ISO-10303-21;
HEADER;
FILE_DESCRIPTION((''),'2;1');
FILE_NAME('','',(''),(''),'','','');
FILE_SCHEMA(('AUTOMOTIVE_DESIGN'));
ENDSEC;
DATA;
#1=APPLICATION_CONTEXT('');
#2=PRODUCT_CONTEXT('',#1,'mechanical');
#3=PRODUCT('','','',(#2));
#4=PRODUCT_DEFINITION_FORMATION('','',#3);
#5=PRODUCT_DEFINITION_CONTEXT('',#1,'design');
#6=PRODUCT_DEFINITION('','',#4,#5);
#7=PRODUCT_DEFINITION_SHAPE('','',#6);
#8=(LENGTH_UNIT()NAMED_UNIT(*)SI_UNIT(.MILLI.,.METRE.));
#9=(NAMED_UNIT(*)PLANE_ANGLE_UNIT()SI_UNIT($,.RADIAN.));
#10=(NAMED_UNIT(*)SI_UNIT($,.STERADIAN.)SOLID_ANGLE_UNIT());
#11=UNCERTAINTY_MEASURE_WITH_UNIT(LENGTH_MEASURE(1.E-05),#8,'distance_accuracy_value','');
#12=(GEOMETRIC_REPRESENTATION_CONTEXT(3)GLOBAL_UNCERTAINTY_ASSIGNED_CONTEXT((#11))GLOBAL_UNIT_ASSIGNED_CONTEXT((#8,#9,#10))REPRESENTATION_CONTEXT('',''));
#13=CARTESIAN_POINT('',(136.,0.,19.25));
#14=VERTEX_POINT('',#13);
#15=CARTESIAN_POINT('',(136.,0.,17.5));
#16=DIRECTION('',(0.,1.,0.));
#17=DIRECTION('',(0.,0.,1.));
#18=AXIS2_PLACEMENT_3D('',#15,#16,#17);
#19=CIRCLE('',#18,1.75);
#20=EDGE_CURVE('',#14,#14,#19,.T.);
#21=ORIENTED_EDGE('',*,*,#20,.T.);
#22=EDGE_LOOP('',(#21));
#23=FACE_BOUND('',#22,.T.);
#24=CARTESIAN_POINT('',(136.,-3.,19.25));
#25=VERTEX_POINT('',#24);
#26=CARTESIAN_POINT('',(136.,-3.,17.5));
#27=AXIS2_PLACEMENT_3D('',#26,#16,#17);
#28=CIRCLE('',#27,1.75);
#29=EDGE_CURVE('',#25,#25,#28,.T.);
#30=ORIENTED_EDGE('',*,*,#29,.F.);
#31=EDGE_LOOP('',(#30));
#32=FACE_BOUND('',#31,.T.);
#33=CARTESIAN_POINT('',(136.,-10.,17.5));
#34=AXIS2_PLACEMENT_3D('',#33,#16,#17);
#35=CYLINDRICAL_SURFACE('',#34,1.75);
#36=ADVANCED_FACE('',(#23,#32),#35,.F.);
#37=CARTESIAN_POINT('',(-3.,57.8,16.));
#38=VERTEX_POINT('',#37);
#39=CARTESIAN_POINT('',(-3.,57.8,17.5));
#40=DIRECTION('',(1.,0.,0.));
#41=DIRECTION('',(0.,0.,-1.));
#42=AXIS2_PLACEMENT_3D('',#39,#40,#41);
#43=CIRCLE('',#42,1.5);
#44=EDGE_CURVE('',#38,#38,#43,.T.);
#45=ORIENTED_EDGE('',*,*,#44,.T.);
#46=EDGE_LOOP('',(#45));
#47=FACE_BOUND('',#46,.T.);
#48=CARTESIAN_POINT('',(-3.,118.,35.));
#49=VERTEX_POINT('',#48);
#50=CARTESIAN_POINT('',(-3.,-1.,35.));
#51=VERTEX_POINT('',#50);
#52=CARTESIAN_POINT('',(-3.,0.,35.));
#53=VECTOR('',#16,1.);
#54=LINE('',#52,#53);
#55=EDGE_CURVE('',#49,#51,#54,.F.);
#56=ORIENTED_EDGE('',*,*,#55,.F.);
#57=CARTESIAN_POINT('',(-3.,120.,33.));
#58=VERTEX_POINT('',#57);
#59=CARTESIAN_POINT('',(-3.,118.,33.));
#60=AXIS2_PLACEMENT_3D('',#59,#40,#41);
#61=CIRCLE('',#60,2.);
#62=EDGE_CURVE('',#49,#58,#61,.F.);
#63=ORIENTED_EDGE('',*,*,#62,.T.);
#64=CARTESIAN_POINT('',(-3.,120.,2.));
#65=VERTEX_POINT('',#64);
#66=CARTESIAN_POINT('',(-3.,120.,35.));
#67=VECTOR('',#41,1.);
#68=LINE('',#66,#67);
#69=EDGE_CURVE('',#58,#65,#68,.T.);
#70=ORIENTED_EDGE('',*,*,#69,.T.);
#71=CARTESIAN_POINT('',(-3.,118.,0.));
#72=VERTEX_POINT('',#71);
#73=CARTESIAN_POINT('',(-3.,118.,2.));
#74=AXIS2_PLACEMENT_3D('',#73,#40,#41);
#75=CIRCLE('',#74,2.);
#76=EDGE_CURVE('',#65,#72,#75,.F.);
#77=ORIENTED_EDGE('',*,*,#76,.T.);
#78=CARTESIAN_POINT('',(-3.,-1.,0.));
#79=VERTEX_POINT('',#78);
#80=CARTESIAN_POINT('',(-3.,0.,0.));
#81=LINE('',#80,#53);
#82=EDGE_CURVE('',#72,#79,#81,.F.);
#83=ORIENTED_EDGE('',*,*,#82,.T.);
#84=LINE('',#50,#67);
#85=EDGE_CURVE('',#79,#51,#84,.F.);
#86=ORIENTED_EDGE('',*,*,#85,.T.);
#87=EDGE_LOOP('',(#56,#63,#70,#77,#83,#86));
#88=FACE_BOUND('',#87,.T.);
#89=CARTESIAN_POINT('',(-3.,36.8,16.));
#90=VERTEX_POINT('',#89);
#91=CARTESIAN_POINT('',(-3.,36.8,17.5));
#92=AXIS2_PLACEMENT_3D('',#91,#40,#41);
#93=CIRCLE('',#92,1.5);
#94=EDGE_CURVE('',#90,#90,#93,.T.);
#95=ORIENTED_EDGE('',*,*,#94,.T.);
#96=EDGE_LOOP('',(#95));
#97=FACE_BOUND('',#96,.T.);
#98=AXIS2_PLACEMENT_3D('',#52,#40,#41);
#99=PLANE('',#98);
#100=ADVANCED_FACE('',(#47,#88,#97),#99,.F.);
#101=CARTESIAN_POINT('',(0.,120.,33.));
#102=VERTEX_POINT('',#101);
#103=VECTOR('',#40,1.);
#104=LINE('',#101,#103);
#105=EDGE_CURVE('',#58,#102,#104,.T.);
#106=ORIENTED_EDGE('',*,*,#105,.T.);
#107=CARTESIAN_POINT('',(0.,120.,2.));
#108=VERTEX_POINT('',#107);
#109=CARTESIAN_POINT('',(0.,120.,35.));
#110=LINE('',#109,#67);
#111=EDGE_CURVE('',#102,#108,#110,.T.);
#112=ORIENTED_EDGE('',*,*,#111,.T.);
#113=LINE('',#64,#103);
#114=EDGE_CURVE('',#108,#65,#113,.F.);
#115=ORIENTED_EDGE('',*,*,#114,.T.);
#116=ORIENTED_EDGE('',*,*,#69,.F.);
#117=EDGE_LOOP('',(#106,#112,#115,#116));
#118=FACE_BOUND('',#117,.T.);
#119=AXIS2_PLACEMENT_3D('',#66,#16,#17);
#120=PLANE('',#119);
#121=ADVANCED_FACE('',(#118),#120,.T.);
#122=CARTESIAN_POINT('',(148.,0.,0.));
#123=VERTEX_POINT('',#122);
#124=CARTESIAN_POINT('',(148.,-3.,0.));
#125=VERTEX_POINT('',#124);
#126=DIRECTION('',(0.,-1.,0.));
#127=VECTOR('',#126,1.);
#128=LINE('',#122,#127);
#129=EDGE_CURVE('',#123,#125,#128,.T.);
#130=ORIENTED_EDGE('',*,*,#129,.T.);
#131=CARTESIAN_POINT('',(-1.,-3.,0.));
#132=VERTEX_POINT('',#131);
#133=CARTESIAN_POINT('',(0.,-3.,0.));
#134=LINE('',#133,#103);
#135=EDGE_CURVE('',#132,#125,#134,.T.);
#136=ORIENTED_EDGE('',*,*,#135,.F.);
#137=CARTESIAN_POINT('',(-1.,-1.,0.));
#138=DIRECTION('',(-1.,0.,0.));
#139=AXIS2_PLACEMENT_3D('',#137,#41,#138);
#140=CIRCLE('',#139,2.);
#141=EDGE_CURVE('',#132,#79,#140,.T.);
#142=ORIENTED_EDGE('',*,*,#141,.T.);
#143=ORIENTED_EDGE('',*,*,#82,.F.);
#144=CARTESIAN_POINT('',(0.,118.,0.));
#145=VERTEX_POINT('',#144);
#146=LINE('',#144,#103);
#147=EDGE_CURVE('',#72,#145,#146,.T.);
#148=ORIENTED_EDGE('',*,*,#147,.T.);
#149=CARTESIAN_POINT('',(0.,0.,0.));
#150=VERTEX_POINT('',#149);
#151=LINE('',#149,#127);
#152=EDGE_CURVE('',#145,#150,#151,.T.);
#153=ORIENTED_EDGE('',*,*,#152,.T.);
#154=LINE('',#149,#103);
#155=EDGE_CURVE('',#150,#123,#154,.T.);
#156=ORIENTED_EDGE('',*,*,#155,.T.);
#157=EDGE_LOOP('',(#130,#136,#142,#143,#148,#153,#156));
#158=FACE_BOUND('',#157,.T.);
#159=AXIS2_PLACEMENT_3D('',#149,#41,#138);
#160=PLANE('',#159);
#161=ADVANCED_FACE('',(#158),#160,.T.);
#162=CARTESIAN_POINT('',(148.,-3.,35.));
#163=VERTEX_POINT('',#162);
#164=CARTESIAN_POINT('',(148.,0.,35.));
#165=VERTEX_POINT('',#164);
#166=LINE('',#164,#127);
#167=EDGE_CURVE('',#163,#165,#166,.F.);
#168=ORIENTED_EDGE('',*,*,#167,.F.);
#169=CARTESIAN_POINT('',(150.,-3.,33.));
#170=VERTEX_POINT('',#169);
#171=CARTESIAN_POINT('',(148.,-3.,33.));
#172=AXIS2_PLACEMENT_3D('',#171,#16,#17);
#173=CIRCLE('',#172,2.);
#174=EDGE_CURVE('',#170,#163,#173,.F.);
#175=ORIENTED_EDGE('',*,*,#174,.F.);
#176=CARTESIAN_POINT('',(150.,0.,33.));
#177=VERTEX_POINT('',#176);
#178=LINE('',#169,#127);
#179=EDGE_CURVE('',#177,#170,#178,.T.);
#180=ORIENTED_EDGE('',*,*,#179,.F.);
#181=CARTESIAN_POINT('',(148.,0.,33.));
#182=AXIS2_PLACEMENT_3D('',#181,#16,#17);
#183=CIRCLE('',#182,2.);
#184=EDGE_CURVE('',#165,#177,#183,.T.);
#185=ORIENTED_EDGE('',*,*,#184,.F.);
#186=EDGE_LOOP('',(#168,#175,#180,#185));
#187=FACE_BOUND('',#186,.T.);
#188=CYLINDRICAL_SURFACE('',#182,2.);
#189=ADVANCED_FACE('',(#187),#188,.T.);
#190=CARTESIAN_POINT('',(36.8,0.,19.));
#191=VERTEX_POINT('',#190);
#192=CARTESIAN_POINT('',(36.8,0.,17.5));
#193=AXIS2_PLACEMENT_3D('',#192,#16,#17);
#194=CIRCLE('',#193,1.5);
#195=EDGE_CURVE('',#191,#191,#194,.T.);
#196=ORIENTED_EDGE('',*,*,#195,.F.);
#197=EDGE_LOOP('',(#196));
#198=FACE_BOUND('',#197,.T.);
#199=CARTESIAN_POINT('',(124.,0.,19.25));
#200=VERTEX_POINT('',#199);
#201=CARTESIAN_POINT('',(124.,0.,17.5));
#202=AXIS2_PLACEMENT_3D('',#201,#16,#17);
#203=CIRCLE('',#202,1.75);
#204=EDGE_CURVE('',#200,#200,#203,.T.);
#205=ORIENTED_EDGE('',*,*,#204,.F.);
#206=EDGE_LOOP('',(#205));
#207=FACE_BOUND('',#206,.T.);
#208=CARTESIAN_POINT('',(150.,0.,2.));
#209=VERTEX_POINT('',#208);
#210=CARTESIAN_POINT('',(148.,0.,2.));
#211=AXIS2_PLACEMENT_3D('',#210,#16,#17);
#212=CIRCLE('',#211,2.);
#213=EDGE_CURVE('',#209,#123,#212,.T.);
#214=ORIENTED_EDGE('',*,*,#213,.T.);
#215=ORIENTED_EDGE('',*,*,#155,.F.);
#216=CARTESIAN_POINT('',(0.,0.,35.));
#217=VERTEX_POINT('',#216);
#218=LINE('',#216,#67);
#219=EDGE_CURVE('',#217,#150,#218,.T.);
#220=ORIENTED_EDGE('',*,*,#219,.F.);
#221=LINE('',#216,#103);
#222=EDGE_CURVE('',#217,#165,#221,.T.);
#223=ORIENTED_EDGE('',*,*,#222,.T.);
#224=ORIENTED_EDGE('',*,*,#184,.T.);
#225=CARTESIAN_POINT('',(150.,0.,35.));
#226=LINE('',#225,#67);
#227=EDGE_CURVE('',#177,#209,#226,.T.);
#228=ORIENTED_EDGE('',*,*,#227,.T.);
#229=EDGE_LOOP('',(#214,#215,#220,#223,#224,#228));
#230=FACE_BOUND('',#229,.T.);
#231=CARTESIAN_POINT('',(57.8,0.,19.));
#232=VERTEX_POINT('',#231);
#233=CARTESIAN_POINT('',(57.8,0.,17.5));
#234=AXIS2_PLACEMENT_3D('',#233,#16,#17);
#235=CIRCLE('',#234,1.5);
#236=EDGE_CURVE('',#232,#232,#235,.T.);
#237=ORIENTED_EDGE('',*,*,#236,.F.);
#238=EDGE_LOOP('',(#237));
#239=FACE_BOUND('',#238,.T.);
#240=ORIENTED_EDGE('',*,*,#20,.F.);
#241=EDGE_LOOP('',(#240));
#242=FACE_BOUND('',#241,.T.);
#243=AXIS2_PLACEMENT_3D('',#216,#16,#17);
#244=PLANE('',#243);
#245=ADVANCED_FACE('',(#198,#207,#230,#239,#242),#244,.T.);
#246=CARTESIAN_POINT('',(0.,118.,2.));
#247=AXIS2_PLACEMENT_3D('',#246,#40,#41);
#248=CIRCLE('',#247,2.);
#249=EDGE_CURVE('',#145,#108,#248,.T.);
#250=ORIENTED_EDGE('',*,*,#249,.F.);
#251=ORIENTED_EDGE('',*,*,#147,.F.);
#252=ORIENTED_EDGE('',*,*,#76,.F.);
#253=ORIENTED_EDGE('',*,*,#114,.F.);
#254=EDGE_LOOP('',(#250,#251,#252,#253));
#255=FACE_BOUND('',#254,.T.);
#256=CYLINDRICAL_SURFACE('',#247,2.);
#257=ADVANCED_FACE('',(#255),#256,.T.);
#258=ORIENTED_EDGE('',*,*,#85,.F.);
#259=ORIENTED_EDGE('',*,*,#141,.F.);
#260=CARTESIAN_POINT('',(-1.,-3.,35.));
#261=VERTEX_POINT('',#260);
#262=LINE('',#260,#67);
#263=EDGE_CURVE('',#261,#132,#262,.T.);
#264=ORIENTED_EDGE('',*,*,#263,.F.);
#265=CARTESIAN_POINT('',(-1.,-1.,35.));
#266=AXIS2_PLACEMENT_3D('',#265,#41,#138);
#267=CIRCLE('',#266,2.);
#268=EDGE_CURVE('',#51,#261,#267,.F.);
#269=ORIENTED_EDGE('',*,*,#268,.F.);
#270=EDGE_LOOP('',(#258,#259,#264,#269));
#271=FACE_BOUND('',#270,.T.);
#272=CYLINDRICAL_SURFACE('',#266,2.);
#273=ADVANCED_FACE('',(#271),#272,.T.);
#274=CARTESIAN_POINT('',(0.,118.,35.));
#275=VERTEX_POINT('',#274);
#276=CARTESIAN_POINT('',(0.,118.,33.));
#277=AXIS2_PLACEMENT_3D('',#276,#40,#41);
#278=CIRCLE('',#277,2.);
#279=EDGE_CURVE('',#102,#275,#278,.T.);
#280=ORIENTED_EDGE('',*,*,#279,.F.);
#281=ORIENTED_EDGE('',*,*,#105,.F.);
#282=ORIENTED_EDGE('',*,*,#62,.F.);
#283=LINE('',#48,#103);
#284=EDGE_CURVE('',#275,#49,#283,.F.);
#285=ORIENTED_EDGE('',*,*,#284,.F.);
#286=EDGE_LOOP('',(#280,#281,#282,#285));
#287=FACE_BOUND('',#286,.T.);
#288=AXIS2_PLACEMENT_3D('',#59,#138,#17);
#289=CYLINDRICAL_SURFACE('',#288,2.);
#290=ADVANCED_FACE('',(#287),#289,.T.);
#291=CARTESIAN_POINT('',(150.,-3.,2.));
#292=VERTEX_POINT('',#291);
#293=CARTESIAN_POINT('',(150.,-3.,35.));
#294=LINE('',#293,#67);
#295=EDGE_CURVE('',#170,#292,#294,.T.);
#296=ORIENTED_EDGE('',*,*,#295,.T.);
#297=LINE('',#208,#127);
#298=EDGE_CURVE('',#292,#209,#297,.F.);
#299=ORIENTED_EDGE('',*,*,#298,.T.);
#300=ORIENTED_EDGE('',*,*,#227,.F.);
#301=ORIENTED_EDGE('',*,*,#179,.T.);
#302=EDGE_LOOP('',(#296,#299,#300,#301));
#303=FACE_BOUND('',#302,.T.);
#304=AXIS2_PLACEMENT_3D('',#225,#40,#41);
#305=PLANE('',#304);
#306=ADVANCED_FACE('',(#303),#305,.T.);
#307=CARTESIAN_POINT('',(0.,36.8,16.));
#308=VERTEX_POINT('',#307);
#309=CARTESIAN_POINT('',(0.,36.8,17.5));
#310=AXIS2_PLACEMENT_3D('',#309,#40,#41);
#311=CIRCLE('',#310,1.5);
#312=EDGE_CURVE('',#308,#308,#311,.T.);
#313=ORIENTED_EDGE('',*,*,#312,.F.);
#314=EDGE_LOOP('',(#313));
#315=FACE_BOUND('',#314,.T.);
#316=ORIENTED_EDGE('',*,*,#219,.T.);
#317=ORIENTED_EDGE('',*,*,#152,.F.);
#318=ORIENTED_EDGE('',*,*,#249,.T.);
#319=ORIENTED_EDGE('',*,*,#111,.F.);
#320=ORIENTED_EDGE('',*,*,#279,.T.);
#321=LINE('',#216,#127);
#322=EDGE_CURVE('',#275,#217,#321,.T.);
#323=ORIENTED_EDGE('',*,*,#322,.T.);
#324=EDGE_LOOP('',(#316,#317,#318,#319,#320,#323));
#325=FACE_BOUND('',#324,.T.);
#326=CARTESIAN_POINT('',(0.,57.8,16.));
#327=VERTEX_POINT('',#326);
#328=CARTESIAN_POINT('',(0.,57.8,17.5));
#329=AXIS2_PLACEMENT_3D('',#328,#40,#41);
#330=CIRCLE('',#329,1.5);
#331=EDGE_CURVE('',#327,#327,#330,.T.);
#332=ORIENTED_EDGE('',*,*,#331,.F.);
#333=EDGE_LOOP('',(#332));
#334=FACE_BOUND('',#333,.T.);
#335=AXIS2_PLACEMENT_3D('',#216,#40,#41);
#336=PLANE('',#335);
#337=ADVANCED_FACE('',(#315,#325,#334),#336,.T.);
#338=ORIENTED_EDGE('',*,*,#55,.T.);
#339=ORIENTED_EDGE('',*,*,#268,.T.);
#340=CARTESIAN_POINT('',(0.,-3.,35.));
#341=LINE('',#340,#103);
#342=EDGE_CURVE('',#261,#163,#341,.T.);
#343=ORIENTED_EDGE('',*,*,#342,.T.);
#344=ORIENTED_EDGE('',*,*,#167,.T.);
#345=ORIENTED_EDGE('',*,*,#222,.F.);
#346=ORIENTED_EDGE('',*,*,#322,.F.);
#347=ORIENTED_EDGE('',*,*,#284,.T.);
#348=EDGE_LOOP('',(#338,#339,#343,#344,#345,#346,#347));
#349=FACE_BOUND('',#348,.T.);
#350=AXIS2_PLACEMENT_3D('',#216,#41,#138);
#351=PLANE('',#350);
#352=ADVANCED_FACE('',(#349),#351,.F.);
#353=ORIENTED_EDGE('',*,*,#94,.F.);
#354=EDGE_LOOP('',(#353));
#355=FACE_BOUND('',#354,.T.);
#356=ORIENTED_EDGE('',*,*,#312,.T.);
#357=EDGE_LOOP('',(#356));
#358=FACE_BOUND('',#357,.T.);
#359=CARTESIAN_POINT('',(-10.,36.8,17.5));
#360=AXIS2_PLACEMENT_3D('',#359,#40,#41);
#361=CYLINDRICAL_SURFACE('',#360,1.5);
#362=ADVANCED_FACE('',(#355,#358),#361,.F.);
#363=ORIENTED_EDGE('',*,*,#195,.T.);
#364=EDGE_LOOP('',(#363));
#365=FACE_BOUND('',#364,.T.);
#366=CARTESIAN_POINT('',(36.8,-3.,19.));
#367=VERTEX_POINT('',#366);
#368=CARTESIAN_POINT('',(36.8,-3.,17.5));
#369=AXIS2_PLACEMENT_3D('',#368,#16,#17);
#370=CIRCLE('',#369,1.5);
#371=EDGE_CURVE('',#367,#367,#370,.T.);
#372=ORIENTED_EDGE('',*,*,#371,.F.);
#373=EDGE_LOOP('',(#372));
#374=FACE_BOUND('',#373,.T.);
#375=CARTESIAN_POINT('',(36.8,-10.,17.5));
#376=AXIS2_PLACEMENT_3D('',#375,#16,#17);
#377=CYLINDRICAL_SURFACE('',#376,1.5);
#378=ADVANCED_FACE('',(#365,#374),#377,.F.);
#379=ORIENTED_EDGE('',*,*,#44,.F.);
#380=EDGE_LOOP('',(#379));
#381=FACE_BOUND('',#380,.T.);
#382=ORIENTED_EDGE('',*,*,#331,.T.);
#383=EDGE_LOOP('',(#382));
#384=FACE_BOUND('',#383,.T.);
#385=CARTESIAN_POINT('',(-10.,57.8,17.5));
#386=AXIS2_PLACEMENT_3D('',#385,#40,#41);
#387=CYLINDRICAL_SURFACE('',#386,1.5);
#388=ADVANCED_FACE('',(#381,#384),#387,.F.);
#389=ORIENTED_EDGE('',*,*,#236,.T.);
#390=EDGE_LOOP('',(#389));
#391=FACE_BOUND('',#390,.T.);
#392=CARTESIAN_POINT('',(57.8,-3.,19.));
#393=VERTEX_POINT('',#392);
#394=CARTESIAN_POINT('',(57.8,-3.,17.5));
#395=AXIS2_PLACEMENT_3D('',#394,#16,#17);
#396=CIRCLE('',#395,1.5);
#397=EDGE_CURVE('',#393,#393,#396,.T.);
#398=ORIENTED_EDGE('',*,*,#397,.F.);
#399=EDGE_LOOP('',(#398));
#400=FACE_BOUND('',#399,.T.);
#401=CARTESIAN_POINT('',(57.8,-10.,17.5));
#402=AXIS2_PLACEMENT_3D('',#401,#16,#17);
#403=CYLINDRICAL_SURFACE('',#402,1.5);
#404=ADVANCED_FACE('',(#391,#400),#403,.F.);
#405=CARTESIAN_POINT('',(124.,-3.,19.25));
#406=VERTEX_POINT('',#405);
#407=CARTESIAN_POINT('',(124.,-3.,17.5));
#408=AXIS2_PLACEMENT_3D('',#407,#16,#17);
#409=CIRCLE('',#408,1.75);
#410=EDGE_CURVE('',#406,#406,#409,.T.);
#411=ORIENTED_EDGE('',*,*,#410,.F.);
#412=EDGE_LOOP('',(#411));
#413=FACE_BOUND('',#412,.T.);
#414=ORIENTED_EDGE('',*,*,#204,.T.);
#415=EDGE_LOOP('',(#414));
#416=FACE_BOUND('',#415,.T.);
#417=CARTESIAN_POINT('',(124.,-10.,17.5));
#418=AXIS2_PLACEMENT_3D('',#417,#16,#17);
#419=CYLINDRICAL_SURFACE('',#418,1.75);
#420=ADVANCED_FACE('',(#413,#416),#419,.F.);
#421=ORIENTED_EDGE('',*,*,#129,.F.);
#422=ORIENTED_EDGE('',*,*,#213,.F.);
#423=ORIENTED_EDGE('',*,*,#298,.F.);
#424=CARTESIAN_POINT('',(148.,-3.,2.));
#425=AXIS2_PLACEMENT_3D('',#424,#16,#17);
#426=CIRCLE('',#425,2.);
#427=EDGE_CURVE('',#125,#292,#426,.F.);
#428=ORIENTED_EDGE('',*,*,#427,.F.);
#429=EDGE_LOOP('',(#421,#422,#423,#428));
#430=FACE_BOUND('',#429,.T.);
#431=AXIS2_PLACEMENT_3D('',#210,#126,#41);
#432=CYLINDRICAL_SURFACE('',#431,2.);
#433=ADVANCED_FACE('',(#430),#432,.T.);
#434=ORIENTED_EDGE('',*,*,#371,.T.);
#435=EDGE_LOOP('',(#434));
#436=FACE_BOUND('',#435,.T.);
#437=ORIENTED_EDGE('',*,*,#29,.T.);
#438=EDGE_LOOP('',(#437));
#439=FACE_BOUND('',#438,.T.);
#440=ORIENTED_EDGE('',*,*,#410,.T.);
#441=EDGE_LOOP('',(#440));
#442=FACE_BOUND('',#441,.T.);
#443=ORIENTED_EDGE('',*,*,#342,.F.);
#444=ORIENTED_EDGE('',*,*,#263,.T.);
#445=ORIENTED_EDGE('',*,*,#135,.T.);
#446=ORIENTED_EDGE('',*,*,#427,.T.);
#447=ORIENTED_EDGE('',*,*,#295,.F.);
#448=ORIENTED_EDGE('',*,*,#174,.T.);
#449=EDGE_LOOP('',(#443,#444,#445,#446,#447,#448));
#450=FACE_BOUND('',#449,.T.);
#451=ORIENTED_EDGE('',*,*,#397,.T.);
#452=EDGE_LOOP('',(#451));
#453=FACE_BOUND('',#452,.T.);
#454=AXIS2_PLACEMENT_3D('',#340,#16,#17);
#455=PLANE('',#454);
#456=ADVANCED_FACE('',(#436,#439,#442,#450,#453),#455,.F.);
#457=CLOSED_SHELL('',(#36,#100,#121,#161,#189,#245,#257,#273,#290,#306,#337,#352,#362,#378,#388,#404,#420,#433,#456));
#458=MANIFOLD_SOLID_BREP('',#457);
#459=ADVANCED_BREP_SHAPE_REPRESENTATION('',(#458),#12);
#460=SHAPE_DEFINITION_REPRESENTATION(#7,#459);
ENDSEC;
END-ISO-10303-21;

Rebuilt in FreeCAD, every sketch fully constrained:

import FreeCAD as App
import Part
import Sketcher
from FreeCAD import Vector


def edges_at(feature, points):
    """Names of the edges that pass closest to the given points."""
    edges = feature.Shape.Edges
    near = lambda p: min(range(len(edges)), key=lambda i: edges[i].distToShape(Part.Vertex(*p))[0])
    return sorted({f"Edge{near(p) + 1}" for p in points})

doc = App.newDocument("Part")
body = doc.addObject("PartDesign::Body", "Body")

# Sketch on XY plane
sketch1 = body.newObject("Sketcher::SketchObject", "Sketch")
sketch1.AttachmentSupport = (doc.getObject("XY_Plane"), [""])
sketch1.MapMode = "FlatFace"
sketch1.addGeometry([
    Part.LineSegment(Vector(0, 0, 0), Vector(0, 120, 0)),  # 0
    Part.LineSegment(Vector(0, 120, 0), Vector(-3, 120, 0)),  # 1
    Part.LineSegment(Vector(-3, 120, 0), Vector(-3, -3, 0)),  # 2
    Part.LineSegment(Vector(-3, -3, 0), Vector(150, -3, 0)),  # 3
    Part.LineSegment(Vector(150, -3, 0), Vector(150, 0, 0)),  # 4
    Part.LineSegment(Vector(150, 0, 0), Vector(0, 0, 0)),  # 5
], False)
sketch1.addConstraint([
    Sketcher.Constraint("Coincident", 0, 2, 1, 1),
    Sketcher.Constraint("Coincident", 1, 2, 2, 1),
    Sketcher.Constraint("Coincident", 2, 2, 3, 1),
    Sketcher.Constraint("Coincident", 3, 2, 4, 1),
    Sketcher.Constraint("Coincident", 4, 2, 5, 1),
    Sketcher.Constraint("Coincident", 5, 2, 0, 1),
    Sketcher.Constraint("Vertical", 0),
    Sketcher.Constraint("Horizontal", 1),
    Sketcher.Constraint("Vertical", 2),
    Sketcher.Constraint("Horizontal", 3),
    Sketcher.Constraint("Vertical", 4),
    Sketcher.Constraint("Horizontal", 5),
    Sketcher.Constraint("Coincident", 5, 2, -1, 1),
    Sketcher.Constraint("Equal", 1, 4),
    Sketcher.Constraint("DistanceX", 1, 2, 1, 1, 3.0),
    Sketcher.Constraint("DistanceX", 3, 1, 3, 2, 153.0),
    Sketcher.Constraint("DistanceY", 0, 1, 0, 2, 120.0),
])
pad1 = body.newObject("PartDesign::Pad", "Pad")
pad1.Profile = sketch1
pad1.Length = 35

# Sketch on XZ plane
sketch2 = body.newObject("Sketcher::SketchObject", "Sketch001")
sketch2.AttachmentSupport = (doc.getObject("XZ_Plane"), [""])
sketch2.MapMode = "FlatFace"
sketch2.addGeometry([
    Part.Circle(Vector(124, 17.5, 0), Vector(0, 0, 1), 1.75),
    Part.Circle(Vector(136, 17.5, 0), Vector(0, 0, 1), 1.75),
], False)
sketch2.addConstraint([
    Sketcher.Constraint("Equal", 0, 1),
    Sketcher.Constraint("Horizontal", 0, 3, 1, 3),
    Sketcher.Constraint("Diameter", 0, 3.5),
    Sketcher.Constraint("DistanceX", -1, 1, 0, 3, 124.0),
    Sketcher.Constraint("DistanceX", -1, 1, 1, 3, 136.0),
    Sketcher.Constraint("DistanceY", -1, 1, 0, 3, 17.5),
])
pocket1 = body.newObject("PartDesign::Pocket", "Pocket")
pocket1.Profile = sketch2
pocket1.Length = 10
pocket1.Reversed = True
doc.recompute()

fillet = body.newObject("PartDesign::Fillet", "Fillet")
fillet.Base = (pocket1, edges_at(pocket1, [
    (-1.5, 120, 35),
    (-1.5, 120, 0),
    (150, -1.5, 0),
    (150, -1.5, 35),
    (-3, -3, 17.5),
]))
fillet.Radius = 2

# Sketch on XZ plane
sketch3 = body.newObject("Sketcher::SketchObject", "Sketch002")
sketch3.AttachmentSupport = (doc.getObject("XZ_Plane"), [""])
sketch3.MapMode = "FlatFace"
sketch3.addGeometry([
    Part.Circle(Vector(36.8, 17.5, 0), Vector(0, 0, 1), 1.5),
    Part.Circle(Vector(57.8, 17.5, 0), Vector(0, 0, 1), 1.5),
], False)
sketch3.addConstraint([
    Sketcher.Constraint("Equal", 0, 1),
    Sketcher.Constraint("Horizontal", 0, 3, 1, 3),
    Sketcher.Constraint("Diameter", 0, 3.0),
    Sketcher.Constraint("DistanceX", 0, 3, 1, 3, 21.0),
    Sketcher.Constraint("DistanceX", -1, 1, 0, 3, 36.8),
    Sketcher.Constraint("DistanceY", -1, 1, 0, 3, 17.5),
])
pocket2 = body.newObject("PartDesign::Pocket", "Pocket001")
pocket2.Profile = sketch3
pocket2.Length = 10
pocket2.Reversed = True

# Sketch on YZ plane
sketch4 = body.newObject("Sketcher::SketchObject", "Sketch003")
sketch4.AttachmentSupport = (doc.getObject("YZ_Plane"), [""])
sketch4.MapMode = "FlatFace"
sketch4.addGeometry([
    Part.Circle(Vector(36.8, 17.5, 0), Vector(0, 0, 1), 1.5),
    Part.Circle(Vector(57.8, 17.5, 0), Vector(0, 0, 1), 1.5),
], False)
sketch4.addConstraint([
    Sketcher.Constraint("Equal", 0, 1),
    Sketcher.Constraint("Horizontal", 0, 3, 1, 3),
    Sketcher.Constraint("Diameter", 0, 3.0),
    Sketcher.Constraint("DistanceX", 0, 3, 1, 3, 21.0),
    Sketcher.Constraint("DistanceX", -1, 1, 0, 3, 36.8),
    Sketcher.Constraint("DistanceY", -1, 1, 0, 3, 17.5),
])
pocket3 = body.newObject("PartDesign::Pocket", "Pocket002")
pocket3.Profile = sketch4
pocket3.Length = 10

doc.recompute()
